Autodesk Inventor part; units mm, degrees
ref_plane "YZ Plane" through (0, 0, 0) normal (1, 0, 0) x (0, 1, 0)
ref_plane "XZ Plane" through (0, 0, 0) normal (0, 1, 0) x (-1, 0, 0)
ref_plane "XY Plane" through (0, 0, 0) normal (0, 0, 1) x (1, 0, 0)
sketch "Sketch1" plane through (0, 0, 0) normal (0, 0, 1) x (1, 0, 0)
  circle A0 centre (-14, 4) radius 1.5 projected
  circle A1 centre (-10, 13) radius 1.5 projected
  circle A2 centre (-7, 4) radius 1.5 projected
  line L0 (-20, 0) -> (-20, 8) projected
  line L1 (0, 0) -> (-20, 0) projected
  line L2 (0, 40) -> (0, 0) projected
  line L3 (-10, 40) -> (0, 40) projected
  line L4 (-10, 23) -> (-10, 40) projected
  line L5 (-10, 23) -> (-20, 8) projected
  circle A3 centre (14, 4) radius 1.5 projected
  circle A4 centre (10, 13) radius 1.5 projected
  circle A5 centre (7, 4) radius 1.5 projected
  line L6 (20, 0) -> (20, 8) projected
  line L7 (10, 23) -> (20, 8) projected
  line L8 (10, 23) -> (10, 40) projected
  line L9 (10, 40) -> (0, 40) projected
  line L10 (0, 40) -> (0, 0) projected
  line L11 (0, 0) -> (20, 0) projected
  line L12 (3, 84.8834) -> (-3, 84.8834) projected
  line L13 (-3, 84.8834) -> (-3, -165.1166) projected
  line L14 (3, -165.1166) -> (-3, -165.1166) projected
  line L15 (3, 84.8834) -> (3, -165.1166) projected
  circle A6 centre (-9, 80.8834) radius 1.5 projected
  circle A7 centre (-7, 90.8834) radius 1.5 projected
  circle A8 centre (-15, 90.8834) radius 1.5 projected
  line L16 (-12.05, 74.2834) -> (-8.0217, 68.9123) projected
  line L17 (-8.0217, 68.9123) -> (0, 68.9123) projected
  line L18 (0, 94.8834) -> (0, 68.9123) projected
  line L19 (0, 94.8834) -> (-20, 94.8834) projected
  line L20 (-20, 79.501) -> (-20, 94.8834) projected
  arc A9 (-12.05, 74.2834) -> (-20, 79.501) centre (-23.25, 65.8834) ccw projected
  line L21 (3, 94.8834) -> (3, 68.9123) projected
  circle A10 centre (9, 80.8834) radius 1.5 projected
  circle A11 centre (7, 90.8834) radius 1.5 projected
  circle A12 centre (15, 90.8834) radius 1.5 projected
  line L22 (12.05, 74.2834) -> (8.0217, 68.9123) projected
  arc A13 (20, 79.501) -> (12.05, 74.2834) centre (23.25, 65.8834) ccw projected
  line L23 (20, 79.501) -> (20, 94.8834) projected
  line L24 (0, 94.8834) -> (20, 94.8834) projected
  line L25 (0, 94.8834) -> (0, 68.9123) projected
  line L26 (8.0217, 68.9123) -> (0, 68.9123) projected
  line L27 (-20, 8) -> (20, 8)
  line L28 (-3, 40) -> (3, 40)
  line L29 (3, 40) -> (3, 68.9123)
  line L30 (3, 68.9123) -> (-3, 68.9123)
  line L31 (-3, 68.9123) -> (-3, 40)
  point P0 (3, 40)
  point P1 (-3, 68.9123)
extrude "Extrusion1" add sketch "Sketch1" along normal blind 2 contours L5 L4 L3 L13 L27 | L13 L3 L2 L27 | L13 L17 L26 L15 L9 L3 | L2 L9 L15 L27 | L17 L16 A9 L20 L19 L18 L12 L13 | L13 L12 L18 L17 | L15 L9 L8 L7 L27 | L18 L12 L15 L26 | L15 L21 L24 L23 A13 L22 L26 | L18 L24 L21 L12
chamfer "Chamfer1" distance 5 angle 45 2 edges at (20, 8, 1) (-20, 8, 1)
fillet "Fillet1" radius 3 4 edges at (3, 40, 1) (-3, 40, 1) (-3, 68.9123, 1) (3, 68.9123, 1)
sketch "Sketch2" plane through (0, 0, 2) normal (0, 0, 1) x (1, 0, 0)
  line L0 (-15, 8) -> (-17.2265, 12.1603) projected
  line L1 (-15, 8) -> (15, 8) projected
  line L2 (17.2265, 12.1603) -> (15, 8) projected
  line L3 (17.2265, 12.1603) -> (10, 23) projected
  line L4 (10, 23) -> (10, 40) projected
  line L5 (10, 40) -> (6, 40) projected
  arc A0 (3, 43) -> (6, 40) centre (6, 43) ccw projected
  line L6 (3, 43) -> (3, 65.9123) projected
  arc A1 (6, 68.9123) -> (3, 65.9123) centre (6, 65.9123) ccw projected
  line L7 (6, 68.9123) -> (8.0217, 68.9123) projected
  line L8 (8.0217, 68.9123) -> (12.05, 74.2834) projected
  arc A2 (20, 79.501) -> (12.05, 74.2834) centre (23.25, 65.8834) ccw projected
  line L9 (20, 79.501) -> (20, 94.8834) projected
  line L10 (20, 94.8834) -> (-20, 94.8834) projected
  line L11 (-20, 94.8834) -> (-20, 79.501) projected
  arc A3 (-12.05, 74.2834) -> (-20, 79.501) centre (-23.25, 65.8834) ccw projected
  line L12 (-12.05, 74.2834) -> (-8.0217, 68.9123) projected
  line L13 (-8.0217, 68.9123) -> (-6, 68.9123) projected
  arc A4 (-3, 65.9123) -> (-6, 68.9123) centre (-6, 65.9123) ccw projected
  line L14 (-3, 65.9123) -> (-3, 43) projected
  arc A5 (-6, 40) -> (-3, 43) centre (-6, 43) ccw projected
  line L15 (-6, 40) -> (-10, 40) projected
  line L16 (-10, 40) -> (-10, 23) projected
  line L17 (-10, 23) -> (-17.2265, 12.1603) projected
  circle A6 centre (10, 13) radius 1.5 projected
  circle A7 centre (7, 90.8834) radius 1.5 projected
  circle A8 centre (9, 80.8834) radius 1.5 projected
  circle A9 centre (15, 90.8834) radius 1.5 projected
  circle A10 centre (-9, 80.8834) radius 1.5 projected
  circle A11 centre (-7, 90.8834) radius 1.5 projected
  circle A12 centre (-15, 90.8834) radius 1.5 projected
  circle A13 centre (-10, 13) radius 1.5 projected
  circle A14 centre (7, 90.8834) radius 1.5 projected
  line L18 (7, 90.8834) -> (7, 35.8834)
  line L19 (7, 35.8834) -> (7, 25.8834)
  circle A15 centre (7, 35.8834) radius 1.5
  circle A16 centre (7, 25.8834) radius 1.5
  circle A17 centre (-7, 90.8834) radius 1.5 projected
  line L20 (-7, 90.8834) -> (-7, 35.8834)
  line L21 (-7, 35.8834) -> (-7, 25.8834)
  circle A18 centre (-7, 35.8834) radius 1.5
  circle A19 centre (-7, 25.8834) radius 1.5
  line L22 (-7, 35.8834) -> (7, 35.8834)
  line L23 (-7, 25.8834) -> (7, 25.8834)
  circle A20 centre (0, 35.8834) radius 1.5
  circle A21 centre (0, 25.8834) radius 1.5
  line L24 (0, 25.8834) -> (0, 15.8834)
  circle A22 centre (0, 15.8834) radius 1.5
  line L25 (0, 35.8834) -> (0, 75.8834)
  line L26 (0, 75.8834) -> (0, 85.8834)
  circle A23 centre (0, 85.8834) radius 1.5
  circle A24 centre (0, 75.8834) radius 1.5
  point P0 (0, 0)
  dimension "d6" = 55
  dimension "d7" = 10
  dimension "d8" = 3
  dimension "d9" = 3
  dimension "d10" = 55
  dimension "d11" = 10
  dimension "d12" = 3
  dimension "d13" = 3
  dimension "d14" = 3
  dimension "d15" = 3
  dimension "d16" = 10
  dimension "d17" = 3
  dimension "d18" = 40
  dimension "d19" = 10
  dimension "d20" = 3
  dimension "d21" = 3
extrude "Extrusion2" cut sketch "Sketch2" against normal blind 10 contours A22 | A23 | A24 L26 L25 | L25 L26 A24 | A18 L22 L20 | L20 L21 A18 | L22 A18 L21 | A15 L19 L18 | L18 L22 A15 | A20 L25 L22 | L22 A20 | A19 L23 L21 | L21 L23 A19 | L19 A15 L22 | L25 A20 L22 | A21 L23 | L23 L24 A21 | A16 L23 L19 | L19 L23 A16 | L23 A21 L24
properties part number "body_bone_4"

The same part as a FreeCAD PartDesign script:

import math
import FreeCAD as App
import Part
import Sketcher

V = App.Vector
Q = App.Units.Quantity


def edges_at(feature, points):
    """Names of the edges that pass closest to the given points."""
    edges = feature.Shape.Edges
    near = lambda p: min(range(len(edges)), key=lambda i: edges[i].distToShape(Part.Vertex(*p))[0])
    return sorted({f"Edge{near(p) + 1}" for p in points})

doc = App.newDocument("Part")
body = doc.addObject("PartDesign::Body", "Body")

sketch1 = body.newObject("Sketcher::SketchObject", "Sketch")
sketch1.AttachmentSupport = (doc.getObject("XY_Plane"), [""])
sketch1.MapMode = "FlatFace"
sketch1.addGeometry(Part.LineSegment(V(-10, 23, 0), V(-20, 8, 0)), False)
sketch1.addGeometry(Part.LineSegment(V(-20, 8, 0), V(20, 8, 0)), False)
sketch1.addGeometry(Part.LineSegment(V(20, 8, 0), V(10, 23, 0)), False)
sketch1.addGeometry(Part.LineSegment(V(10, 23, 0), V(10, 40, 0)), False)
sketch1.addGeometry(Part.LineSegment(V(10, 40, 0), V(3, 40, 0)), False)
sketch1.addGeometry(Part.LineSegment(V(3, 40, 0), V(3, 68.9, 0)), False)
sketch1.addGeometry(Part.LineSegment(V(3, 68.9, 0), V(8, 68.9, 0)), False)
sketch1.addGeometry(Part.LineSegment(V(8, 68.9, 0), V(12.1, 74.3, 0)), False)
sketch1.addGeometry(Part.ArcOfCircle(Part.Circle(V(23.2, 65.9, 0), V(0, 0, 1), 14), math.radians(103), math.radians(143)), False)
sketch1.addGeometry(Part.LineSegment(V(20, 79.5, 0), V(20, 94.9, 0)), False)
sketch1.addGeometry(Part.LineSegment(V(20, 94.9, 0), V(-20, 94.9, 0)), False)
sketch1.addGeometry(Part.LineSegment(V(-20, 94.9, 0), V(-20, 79.5, 0)), False)
sketch1.addGeometry(Part.ArcOfCircle(Part.Circle(V(-23.2, 65.9, 0), V(0, 0, 1), 14), math.radians(37), math.radians(77)), False)
sketch1.addGeometry(Part.LineSegment(V(-12.1, 74.3, 0), V(-8, 68.9, 0)), False)
sketch1.addGeometry(Part.LineSegment(V(-8, 68.9, 0), V(-3, 68.9, 0)), False)
sketch1.addGeometry(Part.LineSegment(V(-3, 68.9, 0), V(-3, 40, 0)), False)
sketch1.addGeometry(Part.LineSegment(V(-3, 40, 0), V(-10, 40, 0)), False)
sketch1.addGeometry(Part.LineSegment(V(-10, 40, 0), V(-10, 23, 0)), False)
sketch1.addGeometry(Part.Circle(V(-10, 13, 0), V(0, 0, 1), 1.5), False)
sketch1.addGeometry(Part.Circle(V(10, 13, 0), V(0, 0, 1), 1.5), False)
sketch1.addGeometry(Part.Circle(V(-9, 80.9, 0), V(0, 0, 1), 1.5), False)
sketch1.addGeometry(Part.Circle(V(-7, 90.9, 0), V(0, 0, 1), 1.5), False)
sketch1.addGeometry(Part.Circle(V(-15, 90.9, 0), V(0, 0, 1), 1.5), False)
sketch1.addGeometry(Part.Circle(V(15, 90.9, 0), V(0, 0, 1), 1.5), False)
sketch1.addGeometry(Part.Circle(V(7, 90.9, 0), V(0, 0, 1), 1.5), False)
sketch1.addGeometry(Part.Circle(V(9, 80.9, 0), V(0, 0, 1), 1.5), False)
sketch1.addConstraint(Sketcher.Constraint("Coincident", 0, 2, 1, 1))
sketch1.addConstraint(Sketcher.Constraint("Coincident", 1, 2, 2, 1))
sketch1.addConstraint(Sketcher.Constraint("Coincident", 2, 2, 3, 1))
sketch1.addConstraint(Sketcher.Constraint("Coincident", 3, 2, 4, 1))
sketch1.addConstraint(Sketcher.Constraint("Coincident", 4, 2, 5, 1))
sketch1.addConstraint(Sketcher.Constraint("Coincident", 5, 2, 6, 1))
sketch1.addConstraint(Sketcher.Constraint("Coincident", 6, 2, 7, 1))
sketch1.addConstraint(Sketcher.Constraint("Tangent", 7, 2, 8, 2))
sketch1.addConstraint(Sketcher.Constraint("Coincident", 8, 1, 9, 1))
sketch1.addConstraint(Sketcher.Constraint("Coincident", 9, 2, 10, 1))
sketch1.addConstraint(Sketcher.Constraint("Coincident", 10, 2, 11, 1))
sketch1.addConstraint(Sketcher.Constraint("Coincident", 11, 2, 12, 2))
sketch1.addConstraint(Sketcher.Constraint("Tangent", 12, 1, 13, 1))
sketch1.addConstraint(Sketcher.Constraint("Coincident", 13, 2, 14, 1))
sketch1.addConstraint(Sketcher.Constraint("Coincident", 14, 2, 15, 1))
sketch1.addConstraint(Sketcher.Constraint("Coincident", 15, 2, 16, 1))
sketch1.addConstraint(Sketcher.Constraint("Coincident", 16, 2, 17, 1))
sketch1.addConstraint(Sketcher.Constraint("Coincident", 17, 2, 0, 1))
sketch1.addConstraint(Sketcher.Constraint("Horizontal", 1))
sketch1.addConstraint(Sketcher.Constraint("Vertical", 3))
sketch1.addConstraint(Sketcher.Constraint("Horizontal", 4))
sketch1.addConstraint(Sketcher.Constraint("Vertical", 5))
sketch1.addConstraint(Sketcher.Constraint("Horizontal", 6))
sketch1.addConstraint(Sketcher.Constraint("Vertical", 9))
sketch1.addConstraint(Sketcher.Constraint("Horizontal", 10))
sketch1.addConstraint(Sketcher.Constraint("Vertical", 11))
sketch1.addConstraint(Sketcher.Constraint("Horizontal", 14))
sketch1.addConstraint(Sketcher.Constraint("Vertical", 15))
sketch1.addConstraint(Sketcher.Constraint("Horizontal", 16))
sketch1.addConstraint(Sketcher.Constraint("Vertical", 17))
sketch1.addConstraint(Sketcher.Constraint("Equal", 8, 12))
sketch1.addConstraint(Sketcher.Constraint("Equal", 18, 19))
sketch1.addConstraint(Sketcher.Constraint("Equal", 19, 20))
sketch1.addConstraint(Sketcher.Constraint("Equal", 20, 21))
sketch1.addConstraint(Sketcher.Constraint("Equal", 21, 22))
sketch1.addConstraint(Sketcher.Constraint("Equal", 22, 23))
sketch1.addConstraint(Sketcher.Constraint("Equal", 23, 24))
sketch1.addConstraint(Sketcher.Constraint("Equal", 24, 25))
sketch1.addConstraint(Sketcher.Constraint("Symmetric", 8, 3, 12, 3, -2))
sketch1.addConstraint(Sketcher.Constraint("Symmetric", 18, 3, 19, 3, -2))
sketch1.addConstraint(Sketcher.Constraint("Symmetric", 22, 3, 23, 3, -2))
sketch1.addConstraint(Sketcher.Constraint("Symmetric", 21, 3, 24, 3, -2))
sketch1.addConstraint(Sketcher.Constraint("Symmetric", 20, 3, 25, 3, -2))
sketch1.addConstraint(Sketcher.Constraint("Symmetric", 6, 2, 13, 2, -2))
sketch1.addConstraint(Sketcher.Constraint("Symmetric", 4, 2, 15, 2, -2))
sketch1.addConstraint(Sketcher.Constraint("Symmetric", 2, 2, 17, 2, -2))
sketch1.addConstraint(Sketcher.Constraint("Horizontal", 21, 3, 22, 3))
sketch1.addConstraint(Sketcher.Constraint("Horizontal", 8, 1, 11, 2))
sketch1.addConstraint(Sketcher.Constraint("Vertical", 19, 3, 2, 2))
sketch1.addConstraint(Sketcher.Constraint("Vertical", 1, 2, 8, 1))
sketch1.addConstraint(Sketcher.Constraint("Vertical", 0, 2, 10, 2))
sketch1.addConstraint(Sketcher.Constraint("Diameter", 18, 3.0))
sketch1.addConstraint(Sketcher.Constraint("Radius", 8, 14.0))
sketch1.addConstraint(Sketcher.Constraint("DistanceX", 1, 1, 1, 2, 40.0))
sketch1.addConstraint(Sketcher.Constraint("DistanceX", 4, 2, 4, 1, 7.0))
sketch1.addConstraint(Sketcher.Constraint("DistanceY", 3, 1, 3, 2, 17.0))
sketch1.addConstraint(Sketcher.Constraint("DistanceX", 18, 3, -1, 1, 10.0))
sketch1.addConstraint(Sketcher.Constraint("DistanceY", -1, 1, 18, 3, 13.0))
sketch1.addConstraint(Sketcher.Constraint("DistanceX", 20, 3, -1, 1, 9.0))
sketch1.addConstraint(Sketcher.Constraint("DistanceX", 21, 3, -1, 1, 7.0))
sketch1.addConstraint(Sketcher.Constraint("DistanceX", 22, 3, -1, 1, 15.0))
sketch1.addConstraint(Sketcher.Constraint("DistanceY", -1, 1, 0, 2, 8.0))
sketch1.addConstraint(Sketcher.Constraint("DistanceY", -1, 1, 2, 2, 23.0))
sketch1.addConstraint(Sketcher.Constraint("DistanceY", 12, 3, 20, 3, 15.0))
sketch1.addConstraint(Sketcher.Constraint("DistanceY", 20, 3, 21, 3, 10.0))
sketch1.addConstraint(Sketcher.Constraint("DistanceY", 23, 3, 9, 2, 4.0))
sketch1.addConstraint(Sketcher.Constraint("Angle", 7, Q("53.1303 deg")))
sketch1.addConstraint(Sketcher.Constraint("DistanceX", 12, 3, 8, 3, 46.5))
sketch1.addConstraint(Sketcher.Constraint("DistanceX", 6, 1, 6, 2, 5.0217))
sketch1.addConstraint(Sketcher.Constraint("DistanceY", 5, 1, 5, 2, 28.9123))
pad1 = body.newObject("PartDesign::Pad", "Pad")
pad1.Profile = sketch1
pad1.Length = 2
doc.recompute()

chamfer = body.newObject("PartDesign::Chamfer", "Chamfer")
chamfer.Base = (pad1, edges_at(pad1, [(20, 8, 1), (-20, 8, 1)]))
chamfer.Size = 5
doc.recompute()

fillet = body.newObject("PartDesign::Fillet", "Fillet")
fillet.Base = (chamfer, edges_at(chamfer, [
    (3, 40, 1),
    (-3, 40, 1),
    (-3, 68.912, 1),
    (3, 68.912, 1),
]))
fillet.Radius = 3

sketch2 = body.newObject("Sketcher::SketchObject", "Sketch001")
sketch2.AttachmentSupport = (doc.getObject("XY_Plane"), [""])
sketch2.MapMode = "FlatFace"
sketch2.AttachmentOffset = App.Placement(V(0, 0, 2), App.Rotation())
sketch2.addGeometry(Part.Circle(V(0, 15.9, 0), V(0, 0, 1), 1.5), False)
sketch2.addGeometry(Part.Circle(V(0, 85.9, 0), V(0, 0, 1), 1.5), False)
sketch2.addGeometry(Part.Circle(V(0, 75.9, 0), V(0, 0, 1), 1.5), False)
sketch2.addGeometry(Part.Circle(V(-7, 35.9, 0), V(0, 0, 1), 1.5), False)
sketch2.addGeometry(Part.Circle(V(7, 35.9, 0), V(0, 0, 1), 1.5), False)
sketch2.addGeometry(Part.Circle(V(0, 35.9, 0), V(0, 0, 1), 1.5), False)
sketch2.addGeometry(Part.Circle(V(-7, 25.9, 0), V(0, 0, 1), 1.5), False)
sketch2.addGeometry(Part.Circle(V(0, 25.9, 0), V(0, 0, 1), 1.5), False)
sketch2.addGeometry(Part.Circle(V(7, 25.9, 0), V(0, 0, 1), 1.5), False)
sketch2.addConstraint(Sketcher.Constraint("Equal", 0, 1))
sketch2.addConstraint(Sketcher.Constraint("Equal", 1, 2))
sketch2.addConstraint(Sketcher.Constraint("Equal", 2, 3))
sketch2.addConstraint(Sketcher.Constraint("Equal", 3, 4))
sketch2.addConstraint(Sketcher.Constraint("Equal", 4, 5))
sketch2.addConstraint(Sketcher.Constraint("Equal", 5, 6))
sketch2.addConstraint(Sketcher.Constraint("Equal", 6, 7))
sketch2.addConstraint(Sketcher.Constraint("Equal", 7, 8))
sketch2.addConstraint(Sketcher.Constraint("Symmetric", 3, 3, 4, 3, -2))
sketch2.addConstraint(Sketcher.Constraint("Symmetric", 6, 3, 8, 3, -2))
sketch2.addConstraint(Sketcher.Constraint("PointOnObject", 0, 3, -2))
sketch2.addConstraint(Sketcher.Constraint("PointOnObject", 1, 3, -2))
sketch2.addConstraint(Sketcher.Constraint("PointOnObject", 2, 3, -2))
sketch2.addConstraint(Sketcher.Constraint("PointOnObject", 5, 3, -2))
sketch2.addConstraint(Sketcher.Constraint("PointOnObject", 7, 3, -2))
sketch2.addConstraint(Sketcher.Constraint("Horizontal", 4, 3, 5, 3))
sketch2.addConstraint(Sketcher.Constraint("Horizontal", 6, 3, 7, 3))
sketch2.addConstraint(Sketcher.Constraint("Vertical", 3, 3, 6, 3))
sketch2.addConstraint(Sketcher.Constraint("Diameter", 0, 3.0))
sketch2.addConstraint(Sketcher.Constraint("DistanceY", 2, 3, 1, 3, 10.0))
sketch2.addConstraint(Sketcher.Constraint("DistanceY", 3, 3, 2, 3, 40.0))
sketch2.addConstraint(Sketcher.Constraint("DistanceY", 6, 3, 3, 3, 10.0))
sketch2.addConstraint(Sketcher.Constraint("DistanceY", 0, 3, 6, 3, 10.0))
sketch2.addConstraint(Sketcher.Constraint("DistanceX", 3, 3, -1, 1, 7.0))
sketch2.addConstraint(Sketcher.Constraint("DistanceY", -1, 1, 0, 3, 15.8834))
pocket1 = body.newObject("PartDesign::Pocket", "Pocket")
pocket1.Profile = sketch2
pocket1.Length = 10

doc.recompute()
